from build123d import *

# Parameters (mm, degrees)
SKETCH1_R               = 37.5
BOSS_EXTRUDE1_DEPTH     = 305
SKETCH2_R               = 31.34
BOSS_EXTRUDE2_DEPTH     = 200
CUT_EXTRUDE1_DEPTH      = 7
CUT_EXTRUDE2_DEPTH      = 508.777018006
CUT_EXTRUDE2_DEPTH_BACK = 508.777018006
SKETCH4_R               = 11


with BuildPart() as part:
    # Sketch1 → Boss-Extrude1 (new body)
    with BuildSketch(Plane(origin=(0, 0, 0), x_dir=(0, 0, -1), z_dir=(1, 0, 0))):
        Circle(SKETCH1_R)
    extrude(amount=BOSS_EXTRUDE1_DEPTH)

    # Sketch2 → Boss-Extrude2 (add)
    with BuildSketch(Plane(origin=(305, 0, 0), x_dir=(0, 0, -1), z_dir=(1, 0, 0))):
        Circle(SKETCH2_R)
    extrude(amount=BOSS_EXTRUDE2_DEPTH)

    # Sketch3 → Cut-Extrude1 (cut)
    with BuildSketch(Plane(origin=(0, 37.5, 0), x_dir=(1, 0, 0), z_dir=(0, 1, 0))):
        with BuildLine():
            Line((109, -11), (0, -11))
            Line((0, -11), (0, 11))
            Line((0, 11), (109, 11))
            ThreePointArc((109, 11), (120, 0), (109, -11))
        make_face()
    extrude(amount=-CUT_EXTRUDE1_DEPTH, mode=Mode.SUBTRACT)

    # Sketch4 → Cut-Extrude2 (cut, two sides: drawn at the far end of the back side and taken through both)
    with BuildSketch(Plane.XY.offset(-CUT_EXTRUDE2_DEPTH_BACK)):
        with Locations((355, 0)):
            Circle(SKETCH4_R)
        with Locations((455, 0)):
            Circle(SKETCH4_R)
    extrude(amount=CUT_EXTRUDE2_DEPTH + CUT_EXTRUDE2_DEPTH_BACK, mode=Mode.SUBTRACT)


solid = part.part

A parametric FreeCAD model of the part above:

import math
import FreeCAD as App
import Part
import Sketcher

doc = App.newDocument("Part")
params = doc.addObject("Spreadsheet::Sheet", "Params")
for row, (alias, value) in enumerate([
    ("sketch1_diameter", "75 mm"),
    ("pad1_length", "305 mm"),
    ("sketch2_diameter", "62.68 mm"),
    ("pad2_length", "200 mm"),
    ("sketch3_radius", "11 mm"),
    ("sketch3_width", "109 mm"),
    ("pocket1_length", "7 mm"),
    ("sketch4_diameter", "22 mm"),
], start=1):
    params.set(f"A{row}", alias)
    params.set(f"B{row}", "=" + value)
    params.setAlias(f"B{row}", alias)

body = doc.addObject("PartDesign::Body", "Body")

# Sketch on YZ plane
sketch1 = body.newObject("Sketcher::SketchObject", "Sketch")
sketch1.AttachmentSupport = (doc.getObject("YZ_Plane"), [""])
sketch1.MapMode = "FlatFace"
sketch1.addGeometry(Part.Circle(App.Vector(0, 0, 0), App.Vector(0, 0, 1), 37.5), False)
sketch1.addConstraint(Sketcher.Constraint("Coincident", 0, 3, -1, 1))
sketch1.addConstraint(Sketcher.Constraint("Diameter", 0, 75.0))
sketch1.setExpression("Constraints[1]", "Params.sketch1_diameter")
pad1 = body.newObject("PartDesign::Pad", "Pad")
pad1.Profile = sketch1
pad1.setExpression("Length", "Params.pad1_length")

# Sketch on YZ plane
sketch2 = body.newObject("Sketcher::SketchObject", "Sketch001")
sketch2.AttachmentSupport = (doc.getObject("YZ_Plane"), [""])
sketch2.MapMode = "FlatFace"
sketch2.AttachmentOffset = App.Placement(App.Vector(0, 0, 305), App.Rotation())
sketch2.addGeometry(Part.Circle(App.Vector(0, 0, 0), App.Vector(0, 0, 1), 31.34), False)
sketch2.addConstraint(Sketcher.Constraint("Coincident", 0, 3, -1, 1))
sketch2.addConstraint(Sketcher.Constraint("Diameter", 0, 62.68))
sketch2.setExpression("Constraints[1]", "Params.sketch2_diameter")
pad2 = body.newObject("PartDesign::Pad", "Pad001")
pad2.Profile = sketch2
pad2.setExpression("Length", "Params.pad2_length")

# Sketch on XZ plane
sketch3 = body.newObject("Sketcher::SketchObject", "Sketch002")
sketch3.AttachmentSupport = (doc.getObject("XZ_Plane"), [""])
sketch3.MapMode = "FlatFace"
sketch3.AttachmentOffset = App.Placement(App.Vector(0, 0, -37.5), App.Rotation())
sketch3.addGeometry(Part.LineSegment(App.Vector(0, 11, 0), App.Vector(109, 11, 0)), False)
sketch3.addGeometry(Part.ArcOfCircle(Part.Circle(App.Vector(109, 0, 0), App.Vector(0, 0, 1), 11), math.radians(-90), math.radians(90)), False)
sketch3.addGeometry(Part.LineSegment(App.Vector(109, -11, 0), App.Vector(0, -11, 0)), False)
sketch3.addGeometry(Part.LineSegment(App.Vector(0, -11, 0), App.Vector(0, 11, 0)), False)
sketch3.addConstraint(Sketcher.Constraint("Tangent", 0, 2, 1, 2))
sketch3.addConstraint(Sketcher.Constraint("Tangent", 1, 1, 2, 1))
sketch3.addConstraint(Sketcher.Constraint("Coincident", 2, 2, 3, 1))
sketch3.addConstraint(Sketcher.Constraint("Coincident", 3, 2, 0, 1))
sketch3.addConstraint(Sketcher.Constraint("Horizontal", 0))
sketch3.addConstraint(Sketcher.Constraint("Horizontal", 2))
sketch3.addConstraint(Sketcher.Constraint("Vertical", 3))
sketch3.addConstraint(Sketcher.Constraint("Symmetric", 2, 2, 3, 2, -1, 1))
sketch3.addConstraint(Sketcher.Constraint("Radius", 1, 11.0))
sketch3.addConstraint(Sketcher.Constraint("DistanceX", 0, 1, 0, 2, 109.0))
sketch3.setExpression("Constraints[8]", "Params.sketch3_radius")
sketch3.setExpression("Constraints[9]", "Params.sketch3_width")
pocket1 = body.newObject("PartDesign::Pocket", "Pocket")
pocket1.Profile = sketch3
pocket1.setExpression("Length", "Params.pocket1_length")
pocket1.Reversed = True

# Sketch on XY plane
sketch4 = body.newObject("Sketcher::SketchObject", "Sketch003")
sketch4.AttachmentSupport = (doc.getObject("XY_Plane"), [""])
sketch4.MapMode = "FlatFace"
sketch4.addGeometry(Part.Circle(App.Vector(355, 0, 0), App.Vector(0, 0, 1), 11), False)
sketch4.addGeometry(Part.Circle(App.Vector(455, 0, 0), App.Vector(0, 0, 1), 11), False)
sketch4.addConstraint(Sketcher.Constraint("Equal", 0, 1))
sketch4.addConstraint(Sketcher.Constraint("PointOnObject", 0, 3, -1))
sketch4.addConstraint(Sketcher.Constraint("PointOnObject", 1, 3, -1))
sketch4.addConstraint(Sketcher.Constraint("Diameter", 0, 22.0))
sketch4.addConstraint(Sketcher.Constraint("DistanceX", -1, 1, 0, 3, 355.0))
sketch4.addConstraint(Sketcher.Constraint("DistanceX", -1, 1, 1, 3, 455.0))
sketch4.setExpression("Constraints[3]", "Params.sketch4_diameter")
pocket2 = body.newObject("PartDesign::Pocket", "Pocket001")
pocket2.Profile = sketch4
pocket2.Type = "ThroughAll"
pocket2.Midplane = True

doc.recompute()
